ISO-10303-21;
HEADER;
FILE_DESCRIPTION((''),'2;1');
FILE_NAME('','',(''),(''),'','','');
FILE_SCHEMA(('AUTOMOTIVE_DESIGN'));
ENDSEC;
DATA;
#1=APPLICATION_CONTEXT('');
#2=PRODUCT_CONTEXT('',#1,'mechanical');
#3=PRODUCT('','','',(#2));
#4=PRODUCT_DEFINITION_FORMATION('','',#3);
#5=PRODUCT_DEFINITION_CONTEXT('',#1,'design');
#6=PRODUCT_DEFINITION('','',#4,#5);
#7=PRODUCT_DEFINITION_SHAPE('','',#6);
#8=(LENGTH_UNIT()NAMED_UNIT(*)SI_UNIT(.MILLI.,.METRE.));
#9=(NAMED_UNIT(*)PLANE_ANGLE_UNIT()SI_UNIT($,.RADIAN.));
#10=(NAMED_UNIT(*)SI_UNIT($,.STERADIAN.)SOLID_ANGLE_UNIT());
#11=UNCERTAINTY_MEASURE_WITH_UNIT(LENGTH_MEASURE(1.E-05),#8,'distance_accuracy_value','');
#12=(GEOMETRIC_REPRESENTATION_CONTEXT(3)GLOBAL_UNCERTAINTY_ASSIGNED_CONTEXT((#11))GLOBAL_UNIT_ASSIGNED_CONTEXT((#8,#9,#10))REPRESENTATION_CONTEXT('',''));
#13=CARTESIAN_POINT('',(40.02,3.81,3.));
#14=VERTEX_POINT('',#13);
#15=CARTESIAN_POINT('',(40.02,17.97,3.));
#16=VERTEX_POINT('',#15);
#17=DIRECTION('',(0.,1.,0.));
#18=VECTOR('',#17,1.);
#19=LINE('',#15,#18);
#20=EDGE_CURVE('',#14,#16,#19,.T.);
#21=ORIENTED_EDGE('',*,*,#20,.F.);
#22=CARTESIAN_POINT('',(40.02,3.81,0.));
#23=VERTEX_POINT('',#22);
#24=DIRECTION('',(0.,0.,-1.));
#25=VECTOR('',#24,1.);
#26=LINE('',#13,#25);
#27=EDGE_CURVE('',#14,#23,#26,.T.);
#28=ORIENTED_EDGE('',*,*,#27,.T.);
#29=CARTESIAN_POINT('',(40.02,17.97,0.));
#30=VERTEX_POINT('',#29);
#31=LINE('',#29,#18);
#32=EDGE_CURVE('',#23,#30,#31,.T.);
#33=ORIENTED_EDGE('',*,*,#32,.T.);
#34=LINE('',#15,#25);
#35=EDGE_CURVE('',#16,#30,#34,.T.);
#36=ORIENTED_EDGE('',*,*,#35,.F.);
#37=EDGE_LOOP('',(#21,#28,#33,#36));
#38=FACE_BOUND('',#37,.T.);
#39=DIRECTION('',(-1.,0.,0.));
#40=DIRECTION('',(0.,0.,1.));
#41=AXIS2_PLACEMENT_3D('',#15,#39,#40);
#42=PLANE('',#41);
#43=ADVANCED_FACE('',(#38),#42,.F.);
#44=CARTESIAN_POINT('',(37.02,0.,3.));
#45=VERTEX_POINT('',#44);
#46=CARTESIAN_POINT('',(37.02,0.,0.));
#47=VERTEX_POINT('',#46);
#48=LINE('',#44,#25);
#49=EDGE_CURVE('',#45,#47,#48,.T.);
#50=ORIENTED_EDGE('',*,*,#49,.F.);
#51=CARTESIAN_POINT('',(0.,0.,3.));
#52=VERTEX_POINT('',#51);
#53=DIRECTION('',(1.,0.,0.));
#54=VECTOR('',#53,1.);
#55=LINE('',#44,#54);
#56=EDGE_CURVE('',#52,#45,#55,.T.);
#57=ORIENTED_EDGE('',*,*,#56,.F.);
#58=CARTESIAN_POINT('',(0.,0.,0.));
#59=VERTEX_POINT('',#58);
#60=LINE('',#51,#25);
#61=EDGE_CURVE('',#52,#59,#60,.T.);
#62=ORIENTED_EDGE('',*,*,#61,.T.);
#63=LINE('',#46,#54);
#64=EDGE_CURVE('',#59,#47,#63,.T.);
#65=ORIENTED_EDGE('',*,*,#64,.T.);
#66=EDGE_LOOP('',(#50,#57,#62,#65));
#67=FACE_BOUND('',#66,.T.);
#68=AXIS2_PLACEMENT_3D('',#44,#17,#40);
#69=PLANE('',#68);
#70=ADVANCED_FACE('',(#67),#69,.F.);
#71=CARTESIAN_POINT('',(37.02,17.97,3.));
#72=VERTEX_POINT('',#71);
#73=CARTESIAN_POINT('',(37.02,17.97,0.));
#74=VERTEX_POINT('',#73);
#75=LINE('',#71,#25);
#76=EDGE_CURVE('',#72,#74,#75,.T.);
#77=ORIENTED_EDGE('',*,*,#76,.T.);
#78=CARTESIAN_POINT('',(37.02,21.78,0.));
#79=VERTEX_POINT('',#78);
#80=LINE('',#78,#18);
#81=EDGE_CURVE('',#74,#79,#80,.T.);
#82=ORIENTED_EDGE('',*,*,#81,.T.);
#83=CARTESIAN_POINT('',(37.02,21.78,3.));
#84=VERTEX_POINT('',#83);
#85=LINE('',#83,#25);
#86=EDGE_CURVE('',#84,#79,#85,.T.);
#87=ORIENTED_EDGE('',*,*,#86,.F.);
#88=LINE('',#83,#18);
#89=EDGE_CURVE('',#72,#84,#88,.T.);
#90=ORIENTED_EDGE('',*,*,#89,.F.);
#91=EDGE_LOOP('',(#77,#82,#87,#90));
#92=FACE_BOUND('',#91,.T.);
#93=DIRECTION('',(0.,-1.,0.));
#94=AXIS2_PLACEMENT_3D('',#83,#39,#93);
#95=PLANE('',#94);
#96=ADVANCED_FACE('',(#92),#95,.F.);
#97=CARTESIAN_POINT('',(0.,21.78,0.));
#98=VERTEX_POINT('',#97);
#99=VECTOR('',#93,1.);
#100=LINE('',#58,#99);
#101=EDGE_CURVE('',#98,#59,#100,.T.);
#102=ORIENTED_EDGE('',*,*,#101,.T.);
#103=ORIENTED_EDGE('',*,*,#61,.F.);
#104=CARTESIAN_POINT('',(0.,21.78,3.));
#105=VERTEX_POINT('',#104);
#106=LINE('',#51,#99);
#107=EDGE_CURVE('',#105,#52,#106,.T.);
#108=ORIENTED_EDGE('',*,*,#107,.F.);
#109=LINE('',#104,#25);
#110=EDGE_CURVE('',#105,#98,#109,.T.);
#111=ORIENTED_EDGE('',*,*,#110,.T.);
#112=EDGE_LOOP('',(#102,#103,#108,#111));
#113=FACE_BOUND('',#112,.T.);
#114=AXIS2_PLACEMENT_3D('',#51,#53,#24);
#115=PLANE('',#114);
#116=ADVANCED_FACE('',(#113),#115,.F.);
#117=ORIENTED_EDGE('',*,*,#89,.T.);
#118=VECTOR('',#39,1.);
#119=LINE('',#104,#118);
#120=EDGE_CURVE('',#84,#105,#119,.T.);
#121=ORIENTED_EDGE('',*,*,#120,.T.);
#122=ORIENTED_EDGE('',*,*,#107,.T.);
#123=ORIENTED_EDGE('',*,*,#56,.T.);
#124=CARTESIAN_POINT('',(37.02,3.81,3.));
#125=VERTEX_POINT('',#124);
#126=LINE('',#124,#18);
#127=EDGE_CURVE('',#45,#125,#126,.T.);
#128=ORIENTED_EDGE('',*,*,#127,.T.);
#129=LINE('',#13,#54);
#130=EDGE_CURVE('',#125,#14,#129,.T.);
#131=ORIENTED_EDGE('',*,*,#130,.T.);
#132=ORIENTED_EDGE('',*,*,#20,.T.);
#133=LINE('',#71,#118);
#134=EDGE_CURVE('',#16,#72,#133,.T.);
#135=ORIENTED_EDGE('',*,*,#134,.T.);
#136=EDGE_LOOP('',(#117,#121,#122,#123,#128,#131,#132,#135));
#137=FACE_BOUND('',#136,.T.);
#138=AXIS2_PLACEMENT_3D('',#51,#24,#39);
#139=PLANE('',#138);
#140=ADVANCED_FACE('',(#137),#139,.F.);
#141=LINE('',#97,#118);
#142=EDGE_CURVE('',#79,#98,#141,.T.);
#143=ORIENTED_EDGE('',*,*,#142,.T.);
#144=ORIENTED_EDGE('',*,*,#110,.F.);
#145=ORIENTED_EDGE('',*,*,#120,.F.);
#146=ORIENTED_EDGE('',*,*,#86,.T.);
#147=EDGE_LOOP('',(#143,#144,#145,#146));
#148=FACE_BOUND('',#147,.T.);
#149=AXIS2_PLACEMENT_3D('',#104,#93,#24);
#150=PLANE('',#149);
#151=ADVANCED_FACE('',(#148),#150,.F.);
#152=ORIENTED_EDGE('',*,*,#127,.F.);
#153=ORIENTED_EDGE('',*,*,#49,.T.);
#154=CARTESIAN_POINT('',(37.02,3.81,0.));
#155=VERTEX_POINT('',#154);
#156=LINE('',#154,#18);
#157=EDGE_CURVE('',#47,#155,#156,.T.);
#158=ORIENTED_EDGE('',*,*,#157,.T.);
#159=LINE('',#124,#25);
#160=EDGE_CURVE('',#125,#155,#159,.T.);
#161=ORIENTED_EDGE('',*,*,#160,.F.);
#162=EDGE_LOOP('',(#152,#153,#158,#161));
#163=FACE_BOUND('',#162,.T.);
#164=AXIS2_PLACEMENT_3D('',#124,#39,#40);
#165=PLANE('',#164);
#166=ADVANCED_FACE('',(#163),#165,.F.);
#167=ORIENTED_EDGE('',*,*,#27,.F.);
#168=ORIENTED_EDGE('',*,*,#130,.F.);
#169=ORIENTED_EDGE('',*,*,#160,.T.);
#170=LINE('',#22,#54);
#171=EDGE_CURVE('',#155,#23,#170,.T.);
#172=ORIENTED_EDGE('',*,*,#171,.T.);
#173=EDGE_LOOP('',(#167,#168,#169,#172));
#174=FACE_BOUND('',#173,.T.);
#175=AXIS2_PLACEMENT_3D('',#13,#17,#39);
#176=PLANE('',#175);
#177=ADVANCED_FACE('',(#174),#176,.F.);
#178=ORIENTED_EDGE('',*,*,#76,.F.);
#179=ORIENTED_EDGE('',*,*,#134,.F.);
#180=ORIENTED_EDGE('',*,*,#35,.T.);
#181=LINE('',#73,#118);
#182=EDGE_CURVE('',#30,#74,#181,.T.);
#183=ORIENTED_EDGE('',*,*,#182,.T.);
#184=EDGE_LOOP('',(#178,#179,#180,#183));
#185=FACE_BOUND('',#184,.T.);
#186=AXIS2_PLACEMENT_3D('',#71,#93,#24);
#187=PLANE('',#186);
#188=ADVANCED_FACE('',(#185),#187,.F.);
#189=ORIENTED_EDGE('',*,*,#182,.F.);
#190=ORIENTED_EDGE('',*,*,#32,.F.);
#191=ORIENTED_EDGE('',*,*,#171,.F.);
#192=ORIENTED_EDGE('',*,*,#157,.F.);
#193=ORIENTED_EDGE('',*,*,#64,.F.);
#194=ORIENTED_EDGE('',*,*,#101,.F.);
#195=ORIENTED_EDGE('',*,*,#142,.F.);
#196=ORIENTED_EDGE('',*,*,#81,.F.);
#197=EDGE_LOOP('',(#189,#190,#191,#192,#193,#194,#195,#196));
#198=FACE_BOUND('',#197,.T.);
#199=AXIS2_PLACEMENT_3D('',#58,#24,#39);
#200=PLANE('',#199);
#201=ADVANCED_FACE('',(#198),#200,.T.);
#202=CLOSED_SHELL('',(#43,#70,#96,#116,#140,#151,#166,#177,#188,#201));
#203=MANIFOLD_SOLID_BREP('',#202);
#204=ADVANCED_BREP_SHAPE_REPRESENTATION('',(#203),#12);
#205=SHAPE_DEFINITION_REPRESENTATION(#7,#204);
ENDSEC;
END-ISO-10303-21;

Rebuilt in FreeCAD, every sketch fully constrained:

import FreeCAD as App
import Part
import Sketcher


def add_polygon(sketch, points):
    """Adds a closed chain of lines whose ends are joined by coincident constraints."""
    first, n = sketch.GeometryCount, len(points)
    for a, b in zip(points, points[1:] + points[:1]):
        sketch.addGeometry(Part.LineSegment(App.Vector(*a, 0), App.Vector(*b, 0)), False)
    for i in range(n):
        sketch.addConstraint(Sketcher.Constraint("Coincident", first + i, 2, first + (i + 1) % n, 1))

doc = App.newDocument("Part")
params = doc.addObject("Spreadsheet::Sheet", "Params")
for row, (alias, value) in enumerate([
    ("sketch1_width", "3 mm"),
    ("sketch1_width2", "37.02 mm"),
    ("sketch1_height", "21.78 mm"),
    ("sketch1_height2", "3.81 mm"),
    ("pad1_length", "3 mm"),
], start=1):
    params.set(f"A{row}", alias)
    params.set(f"B{row}", "=" + value)
    params.setAlias(f"B{row}", alias)

body = doc.addObject("PartDesign::Body", "Body")

# Sketch on XY plane
sketch1 = doc.addObject("Sketcher::SketchObject", "Sketch")
body.addObject(sketch1)
sketch1.AttachmentSupport = (doc.XY_Plane, [""])
sketch1.MapMode = "FlatFace"
add_polygon(sketch1, [(37.02, 21.78), (0, 21.78), (0, 0), (37.02, 0), (37.02, 3.81), (40.02, 3.81), (40.02, 17.97), (37.02, 17.97)])  # lines 0-7
sketch1.addConstraint([
    Sketcher.Constraint("Horizontal", 0),
    Sketcher.Constraint("Vertical", 1),
    Sketcher.Constraint("Horizontal", 2),
    Sketcher.Constraint("Vertical", 3),
    Sketcher.Constraint("Horizontal", 4),
    Sketcher.Constraint("Vertical", 5),
    Sketcher.Constraint("Horizontal", 6),
    Sketcher.Constraint("Vertical", 7),
    Sketcher.Constraint("Coincident", 1, 2, -1, 1),
    Sketcher.Constraint("Vertical", 3, 2, 6, 2),
    Sketcher.Constraint("Equal", 3, 7),
    Sketcher.Constraint("DistanceX", 4, 1, 4, 2, 3.0),
    Sketcher.Constraint("DistanceX", 0, 2, 0, 1, 37.02),
    Sketcher.Constraint("DistanceY", 1, 2, 1, 1, 21.78),
    Sketcher.Constraint("DistanceY", 3, 1, 3, 2, 3.81),
])
sketch1.setExpression("Constraints[19]", "Params.sketch1_width")
sketch1.setExpression("Constraints[20]", "Params.sketch1_width2")
sketch1.setExpression("Constraints[21]", "Params.sketch1_height")
sketch1.setExpression("Constraints[22]", "Params.sketch1_height2")
pad1 = doc.addObject("PartDesign::Pad", "Pad")
body.addObject(pad1)
pad1.Profile = sketch1
pad1.setExpression("Length", "Params.pad1_length")

doc.recompute()
